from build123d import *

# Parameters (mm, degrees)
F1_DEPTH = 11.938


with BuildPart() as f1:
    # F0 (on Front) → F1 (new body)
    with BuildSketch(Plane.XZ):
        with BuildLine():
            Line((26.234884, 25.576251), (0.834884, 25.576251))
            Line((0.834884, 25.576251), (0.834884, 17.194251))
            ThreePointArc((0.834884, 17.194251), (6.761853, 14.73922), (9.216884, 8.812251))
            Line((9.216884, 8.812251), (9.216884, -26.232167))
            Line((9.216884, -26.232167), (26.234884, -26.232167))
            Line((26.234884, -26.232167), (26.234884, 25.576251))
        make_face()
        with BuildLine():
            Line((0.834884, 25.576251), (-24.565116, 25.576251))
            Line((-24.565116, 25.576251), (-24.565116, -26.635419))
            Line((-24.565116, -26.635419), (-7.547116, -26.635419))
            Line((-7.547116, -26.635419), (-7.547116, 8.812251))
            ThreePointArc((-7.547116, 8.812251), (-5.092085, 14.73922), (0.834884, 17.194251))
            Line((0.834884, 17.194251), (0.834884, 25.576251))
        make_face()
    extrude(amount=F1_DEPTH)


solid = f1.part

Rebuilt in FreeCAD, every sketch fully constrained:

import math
import FreeCAD as App
import Part
import Sketcher
Q = App.Units.Quantity

doc = App.newDocument("Part")
params = doc.addObject("Spreadsheet::Sheet", "Params")
for row, (alias, value) in enumerate([
    ("sketch1_width", "2 in"),
    ("sketch1_radius", "0.33 in"),
    ("pad1_length", "0.47 in"),
], start=1):
    params.set(f"A{row}", alias)
    params.set(f"B{row}", "=" + value)
    params.setAlias(f"B{row}", alias)

body = doc.addObject("PartDesign::Body", "Body")

sketch1 = body.newObject("Sketcher::SketchObject", "Sketch")
sketch1.AttachmentSupport = (doc.getObject("XZ_Plane"), [""])
sketch1.MapMode = "FlatFace"
sketch1.addGeometry([
    Part.LineSegment(App.Vector(26, 26, 0), App.Vector(-25, 26, 0)),
    Part.LineSegment(App.Vector(-25, 26, 0), App.Vector(-25, -27, 0)),
    Part.LineSegment(App.Vector(-25, -27, 0), App.Vector(-8, -27, 0)),
    Part.LineSegment(App.Vector(-8, -27, 0), App.Vector(-8, 9, 0)),
    Part.ArcOfCircle(Part.Circle(App.Vector(1, 9, 0), App.Vector(0, 0, 1), 8), math.radians(90), math.radians(180)),
    Part.ArcOfCircle(Part.Circle(App.Vector(1, 9, 0), App.Vector(0, 0, 1), 8), math.radians(0), math.radians(90)),
    Part.LineSegment(App.Vector(9, 9, 0), App.Vector(9, -26, 0)),
    Part.LineSegment(App.Vector(9, -26, 0), App.Vector(26, -26, 0)),
    Part.LineSegment(App.Vector(26, -26, 0), App.Vector(26, 26, 0)),
], False)
sketch1.addConstraint([
    Sketcher.Constraint("Coincident", 0, 2, 1, 1),
    Sketcher.Constraint("Coincident", 1, 2, 2, 1),
    Sketcher.Constraint("Coincident", 2, 2, 3, 1),
    Sketcher.Constraint("Tangent", 3, 2, 4, 2),
    Sketcher.Constraint("Tangent", 4, 1, 5, 2),
    Sketcher.Constraint("Tangent", 5, 1, 6, 1),
    Sketcher.Constraint("Coincident", 6, 2, 7, 1),
    Sketcher.Constraint("Coincident", 7, 2, 8, 1),
    Sketcher.Constraint("Coincident", 8, 2, 0, 1),
    Sketcher.Constraint("Horizontal", 0),
    Sketcher.Constraint("Vertical", 1),
    Sketcher.Constraint("Horizontal", 2),
    Sketcher.Constraint("Vertical", 3),
    Sketcher.Constraint("Vertical", 6),
    Sketcher.Constraint("Horizontal", 7),
    Sketcher.Constraint("Vertical", 8),
    Sketcher.Constraint("Equal", 4, 5),
    Sketcher.Constraint("Vertical", 5, 3, 4, 1),
    Sketcher.Constraint("Equal", 2, 7),
    Sketcher.Constraint("DistanceX", 0, 2, 0, 1, Q("2 in")),
    Sketcher.Constraint("Radius", 4, Q("0.33 in")),
    Sketcher.Constraint("DistanceY", 5, 3, 0, 2, Q("0.66 in")),
    Sketcher.Constraint("DistanceY", 1, 2, 1, 1, Q("52.21167 mm")),
    Sketcher.Constraint("DistanceY", 8, 1, 8, 2, Q("51.808418 mm")),
    Sketcher.Constraint("DistanceY", -1, 1, 4, 3, Q("8.812251 mm")),
    Sketcher.Constraint("DistanceX", -1, 1, 4, 3, Q("0.834884 mm")),
])
sketch1.setExpression("Constraints[19]", "Params.sketch1_width")
sketch1.setExpression("Constraints[20]", "Params.sketch1_radius")
pad1 = body.newObject("PartDesign::Pad", "Pad")
pad1.Profile = sketch1
pad1.setExpression("Length", "Params.pad1_length")

doc.recompute()
